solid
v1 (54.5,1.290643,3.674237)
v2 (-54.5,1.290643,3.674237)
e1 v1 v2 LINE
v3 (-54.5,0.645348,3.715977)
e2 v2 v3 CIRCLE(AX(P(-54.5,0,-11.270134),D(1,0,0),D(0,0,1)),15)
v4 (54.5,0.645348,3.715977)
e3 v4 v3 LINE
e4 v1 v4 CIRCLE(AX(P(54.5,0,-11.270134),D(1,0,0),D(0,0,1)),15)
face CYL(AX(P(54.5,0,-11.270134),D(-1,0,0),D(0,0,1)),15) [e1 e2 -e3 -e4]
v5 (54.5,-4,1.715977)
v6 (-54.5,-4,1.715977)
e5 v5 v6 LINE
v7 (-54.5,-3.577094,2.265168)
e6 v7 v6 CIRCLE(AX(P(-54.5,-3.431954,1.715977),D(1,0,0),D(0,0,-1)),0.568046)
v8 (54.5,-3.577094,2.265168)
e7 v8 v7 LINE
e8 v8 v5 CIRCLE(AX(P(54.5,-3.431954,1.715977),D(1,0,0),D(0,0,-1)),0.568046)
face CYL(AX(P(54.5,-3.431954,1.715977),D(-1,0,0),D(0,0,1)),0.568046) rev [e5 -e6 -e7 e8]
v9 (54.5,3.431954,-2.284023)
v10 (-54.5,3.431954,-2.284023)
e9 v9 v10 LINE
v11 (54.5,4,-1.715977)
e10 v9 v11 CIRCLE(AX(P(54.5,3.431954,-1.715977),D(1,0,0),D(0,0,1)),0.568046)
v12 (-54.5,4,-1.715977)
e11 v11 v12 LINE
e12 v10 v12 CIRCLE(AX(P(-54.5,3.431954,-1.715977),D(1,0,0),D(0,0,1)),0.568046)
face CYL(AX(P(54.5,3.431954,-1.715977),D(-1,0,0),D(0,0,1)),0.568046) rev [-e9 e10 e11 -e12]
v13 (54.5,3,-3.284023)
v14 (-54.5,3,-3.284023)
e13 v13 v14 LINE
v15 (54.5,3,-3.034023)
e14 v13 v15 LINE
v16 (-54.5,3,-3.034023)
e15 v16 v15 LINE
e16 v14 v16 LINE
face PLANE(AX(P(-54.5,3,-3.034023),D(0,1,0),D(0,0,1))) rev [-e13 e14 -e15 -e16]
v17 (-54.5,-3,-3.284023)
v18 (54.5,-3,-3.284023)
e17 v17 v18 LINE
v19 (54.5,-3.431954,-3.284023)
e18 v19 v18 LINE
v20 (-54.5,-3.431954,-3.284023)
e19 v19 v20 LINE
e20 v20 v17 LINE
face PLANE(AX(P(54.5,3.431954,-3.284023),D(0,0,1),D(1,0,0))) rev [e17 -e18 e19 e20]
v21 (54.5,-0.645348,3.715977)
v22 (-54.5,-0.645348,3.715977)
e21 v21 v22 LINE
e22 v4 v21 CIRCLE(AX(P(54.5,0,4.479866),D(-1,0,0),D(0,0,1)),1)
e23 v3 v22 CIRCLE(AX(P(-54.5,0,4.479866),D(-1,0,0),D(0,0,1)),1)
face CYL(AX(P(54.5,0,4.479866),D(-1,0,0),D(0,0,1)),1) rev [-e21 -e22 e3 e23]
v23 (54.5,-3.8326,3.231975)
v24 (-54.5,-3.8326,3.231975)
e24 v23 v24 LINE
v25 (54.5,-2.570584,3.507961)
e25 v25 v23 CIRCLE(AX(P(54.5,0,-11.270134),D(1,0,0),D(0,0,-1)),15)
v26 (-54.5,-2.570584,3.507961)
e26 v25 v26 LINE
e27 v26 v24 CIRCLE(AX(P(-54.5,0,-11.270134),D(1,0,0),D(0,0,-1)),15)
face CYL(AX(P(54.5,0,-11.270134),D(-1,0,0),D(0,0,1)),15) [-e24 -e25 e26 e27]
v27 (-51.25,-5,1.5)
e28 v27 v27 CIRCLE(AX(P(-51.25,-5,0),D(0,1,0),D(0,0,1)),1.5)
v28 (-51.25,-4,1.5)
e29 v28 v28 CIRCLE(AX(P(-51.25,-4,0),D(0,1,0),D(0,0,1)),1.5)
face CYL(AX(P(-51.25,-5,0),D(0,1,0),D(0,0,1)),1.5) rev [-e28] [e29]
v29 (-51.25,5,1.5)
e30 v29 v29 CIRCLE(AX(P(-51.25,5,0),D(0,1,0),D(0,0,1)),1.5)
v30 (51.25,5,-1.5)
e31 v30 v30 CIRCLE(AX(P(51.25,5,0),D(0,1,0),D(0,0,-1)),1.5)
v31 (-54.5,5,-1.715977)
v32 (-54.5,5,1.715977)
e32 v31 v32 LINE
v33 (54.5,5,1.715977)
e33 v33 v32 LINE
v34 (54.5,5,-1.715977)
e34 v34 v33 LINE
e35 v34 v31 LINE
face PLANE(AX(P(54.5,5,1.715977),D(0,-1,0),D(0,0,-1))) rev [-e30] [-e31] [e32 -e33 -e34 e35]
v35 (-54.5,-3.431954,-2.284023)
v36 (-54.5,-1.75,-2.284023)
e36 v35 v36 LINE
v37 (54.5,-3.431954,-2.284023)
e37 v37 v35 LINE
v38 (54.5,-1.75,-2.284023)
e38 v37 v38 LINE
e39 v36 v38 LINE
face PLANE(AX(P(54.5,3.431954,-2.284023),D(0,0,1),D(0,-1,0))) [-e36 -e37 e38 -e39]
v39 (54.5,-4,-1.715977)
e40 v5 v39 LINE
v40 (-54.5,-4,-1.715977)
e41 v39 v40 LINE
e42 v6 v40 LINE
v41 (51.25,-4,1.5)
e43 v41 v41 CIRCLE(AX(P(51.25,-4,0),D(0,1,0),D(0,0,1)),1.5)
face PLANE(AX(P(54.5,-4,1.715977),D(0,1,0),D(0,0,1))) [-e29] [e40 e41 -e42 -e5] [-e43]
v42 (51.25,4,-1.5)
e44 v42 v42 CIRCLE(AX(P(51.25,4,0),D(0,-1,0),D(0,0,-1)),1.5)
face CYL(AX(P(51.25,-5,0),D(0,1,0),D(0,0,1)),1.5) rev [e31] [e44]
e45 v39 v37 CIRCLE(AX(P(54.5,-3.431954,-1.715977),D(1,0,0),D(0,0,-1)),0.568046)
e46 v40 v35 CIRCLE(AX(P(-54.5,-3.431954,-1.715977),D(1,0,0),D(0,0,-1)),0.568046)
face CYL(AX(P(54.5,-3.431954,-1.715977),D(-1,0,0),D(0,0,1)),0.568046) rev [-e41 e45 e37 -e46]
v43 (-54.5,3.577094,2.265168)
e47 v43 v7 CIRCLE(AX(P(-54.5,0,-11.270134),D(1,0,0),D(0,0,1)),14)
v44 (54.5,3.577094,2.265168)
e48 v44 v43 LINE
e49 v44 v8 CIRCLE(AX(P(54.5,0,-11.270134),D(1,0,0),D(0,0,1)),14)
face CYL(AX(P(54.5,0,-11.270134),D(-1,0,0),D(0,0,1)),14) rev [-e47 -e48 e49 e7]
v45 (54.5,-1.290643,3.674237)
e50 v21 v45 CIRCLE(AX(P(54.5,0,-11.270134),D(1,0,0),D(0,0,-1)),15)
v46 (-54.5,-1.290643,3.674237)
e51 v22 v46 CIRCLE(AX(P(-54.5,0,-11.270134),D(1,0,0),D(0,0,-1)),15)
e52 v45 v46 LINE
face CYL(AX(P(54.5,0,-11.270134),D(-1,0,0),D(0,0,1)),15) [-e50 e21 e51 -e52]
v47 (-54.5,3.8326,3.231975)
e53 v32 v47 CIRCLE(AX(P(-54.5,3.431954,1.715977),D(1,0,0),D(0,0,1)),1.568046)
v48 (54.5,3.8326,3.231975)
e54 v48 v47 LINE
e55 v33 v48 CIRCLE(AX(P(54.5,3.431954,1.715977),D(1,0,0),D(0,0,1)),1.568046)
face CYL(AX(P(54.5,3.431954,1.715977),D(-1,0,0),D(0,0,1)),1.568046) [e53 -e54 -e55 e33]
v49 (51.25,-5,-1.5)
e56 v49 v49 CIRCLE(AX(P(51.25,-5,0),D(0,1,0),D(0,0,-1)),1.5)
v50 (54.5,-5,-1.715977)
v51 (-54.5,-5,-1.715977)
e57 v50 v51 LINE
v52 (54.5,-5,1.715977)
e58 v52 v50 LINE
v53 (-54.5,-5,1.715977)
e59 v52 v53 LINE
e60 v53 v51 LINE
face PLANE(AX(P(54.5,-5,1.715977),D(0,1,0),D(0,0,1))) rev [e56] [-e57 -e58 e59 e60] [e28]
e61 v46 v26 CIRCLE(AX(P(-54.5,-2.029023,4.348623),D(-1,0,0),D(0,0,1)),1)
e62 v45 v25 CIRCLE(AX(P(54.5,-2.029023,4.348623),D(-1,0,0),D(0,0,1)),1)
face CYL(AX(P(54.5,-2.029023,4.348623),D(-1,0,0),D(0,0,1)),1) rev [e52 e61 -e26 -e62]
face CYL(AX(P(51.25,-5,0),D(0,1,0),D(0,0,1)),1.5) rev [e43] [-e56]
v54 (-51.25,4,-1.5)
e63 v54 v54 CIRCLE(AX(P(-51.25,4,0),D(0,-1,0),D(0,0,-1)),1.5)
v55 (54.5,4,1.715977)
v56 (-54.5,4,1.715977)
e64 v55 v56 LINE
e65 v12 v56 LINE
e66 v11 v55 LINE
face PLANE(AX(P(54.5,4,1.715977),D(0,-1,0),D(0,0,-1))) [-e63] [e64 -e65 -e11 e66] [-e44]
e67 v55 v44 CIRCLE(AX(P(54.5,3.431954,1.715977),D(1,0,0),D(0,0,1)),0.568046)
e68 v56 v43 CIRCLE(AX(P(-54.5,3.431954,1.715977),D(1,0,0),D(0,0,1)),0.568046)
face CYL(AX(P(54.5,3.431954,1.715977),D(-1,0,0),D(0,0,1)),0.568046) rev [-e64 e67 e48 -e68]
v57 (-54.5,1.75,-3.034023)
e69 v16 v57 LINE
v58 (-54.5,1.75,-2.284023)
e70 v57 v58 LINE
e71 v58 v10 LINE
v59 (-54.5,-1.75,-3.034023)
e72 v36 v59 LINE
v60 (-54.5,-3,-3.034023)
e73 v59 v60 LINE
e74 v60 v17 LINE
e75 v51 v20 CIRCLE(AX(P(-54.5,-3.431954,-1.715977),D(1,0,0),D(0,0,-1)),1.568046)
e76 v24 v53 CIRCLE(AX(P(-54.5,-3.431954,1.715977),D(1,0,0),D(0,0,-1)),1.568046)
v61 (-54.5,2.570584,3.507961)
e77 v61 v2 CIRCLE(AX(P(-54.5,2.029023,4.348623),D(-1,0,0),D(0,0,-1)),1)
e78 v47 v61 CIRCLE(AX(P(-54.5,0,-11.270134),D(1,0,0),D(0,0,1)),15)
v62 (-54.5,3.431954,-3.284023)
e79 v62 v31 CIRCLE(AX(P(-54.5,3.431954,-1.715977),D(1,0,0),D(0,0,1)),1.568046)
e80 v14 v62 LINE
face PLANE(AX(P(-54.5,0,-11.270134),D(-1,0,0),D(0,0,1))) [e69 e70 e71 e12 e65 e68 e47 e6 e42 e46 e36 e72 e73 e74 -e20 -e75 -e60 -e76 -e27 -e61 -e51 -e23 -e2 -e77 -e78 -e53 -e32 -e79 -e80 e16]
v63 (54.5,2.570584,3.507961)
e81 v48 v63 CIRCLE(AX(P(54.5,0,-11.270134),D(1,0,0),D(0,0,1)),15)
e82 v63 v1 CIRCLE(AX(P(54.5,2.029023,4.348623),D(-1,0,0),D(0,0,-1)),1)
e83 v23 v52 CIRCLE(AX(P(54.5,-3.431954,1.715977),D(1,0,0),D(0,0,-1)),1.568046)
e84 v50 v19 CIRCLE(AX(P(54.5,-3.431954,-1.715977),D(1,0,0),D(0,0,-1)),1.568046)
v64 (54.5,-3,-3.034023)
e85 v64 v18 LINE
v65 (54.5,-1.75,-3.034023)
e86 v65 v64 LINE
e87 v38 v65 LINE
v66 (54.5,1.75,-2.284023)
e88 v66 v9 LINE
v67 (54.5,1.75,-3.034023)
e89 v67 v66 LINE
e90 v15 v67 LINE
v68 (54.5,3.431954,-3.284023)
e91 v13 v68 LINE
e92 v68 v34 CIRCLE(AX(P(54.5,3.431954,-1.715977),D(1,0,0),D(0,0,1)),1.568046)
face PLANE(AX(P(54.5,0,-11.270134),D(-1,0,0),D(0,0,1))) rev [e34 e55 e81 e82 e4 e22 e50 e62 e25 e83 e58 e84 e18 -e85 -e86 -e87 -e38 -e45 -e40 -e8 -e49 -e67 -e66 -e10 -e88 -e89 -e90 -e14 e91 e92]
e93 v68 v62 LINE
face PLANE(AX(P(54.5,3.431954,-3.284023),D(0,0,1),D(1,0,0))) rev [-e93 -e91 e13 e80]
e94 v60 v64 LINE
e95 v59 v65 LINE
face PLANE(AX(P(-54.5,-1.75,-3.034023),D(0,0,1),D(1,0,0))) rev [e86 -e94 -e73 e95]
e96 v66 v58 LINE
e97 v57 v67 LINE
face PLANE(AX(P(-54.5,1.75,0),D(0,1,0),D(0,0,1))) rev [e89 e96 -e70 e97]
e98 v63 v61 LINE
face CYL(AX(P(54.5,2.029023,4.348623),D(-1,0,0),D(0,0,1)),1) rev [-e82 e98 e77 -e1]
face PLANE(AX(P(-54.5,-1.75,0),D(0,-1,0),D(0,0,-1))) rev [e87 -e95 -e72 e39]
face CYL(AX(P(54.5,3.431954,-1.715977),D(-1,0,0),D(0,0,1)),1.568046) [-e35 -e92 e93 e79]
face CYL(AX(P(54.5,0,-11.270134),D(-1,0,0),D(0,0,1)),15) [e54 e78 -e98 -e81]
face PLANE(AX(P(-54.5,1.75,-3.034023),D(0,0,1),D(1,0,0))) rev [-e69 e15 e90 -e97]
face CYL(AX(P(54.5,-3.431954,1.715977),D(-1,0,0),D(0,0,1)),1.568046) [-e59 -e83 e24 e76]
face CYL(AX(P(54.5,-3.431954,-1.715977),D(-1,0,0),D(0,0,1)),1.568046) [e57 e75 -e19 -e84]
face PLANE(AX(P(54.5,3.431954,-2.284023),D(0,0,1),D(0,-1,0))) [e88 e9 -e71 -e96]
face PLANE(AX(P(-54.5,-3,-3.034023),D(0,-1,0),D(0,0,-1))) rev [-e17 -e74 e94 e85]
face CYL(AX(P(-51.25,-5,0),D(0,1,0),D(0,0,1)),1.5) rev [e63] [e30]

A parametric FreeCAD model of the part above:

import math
import FreeCAD as App
import Part
import Sketcher
Q = App.Units.Quantity

doc = App.newDocument("Part")
body = doc.addObject("PartDesign::Body", "Body")

sketch1 = body.newObject("Sketcher::SketchObject", "Sketch")
sketch1.AttachmentSupport = (doc.getObject("YZ_Plane"), [""])
sketch1.MapMode = "FlatFace"
sketch1.addGeometry([
    Part.LineSegment(App.Vector(5, -1.7, 0), App.Vector(5, 1.7, 0)),
    Part.ArcOfCircle(Part.Circle(App.Vector(3.4, 1.7, 0), App.Vector(0, 0, 1), 1.6), math.radians(0), math.radians(75)),
    Part.ArcOfCircle(Part.Circle(App.Vector(0, -11.3, 0), App.Vector(0, 0, 1), 15), math.radians(75.2), math.radians(80.13)),
    Part.ArcOfCircle(Part.Circle(App.Vector(2, 4.3, 0), App.Vector(0, 0, 1), 1), math.radians(-138), math.radians(-57)),
    Part.ArcOfCircle(Part.Circle(App.Vector(0, -11.3, 0), App.Vector(0, 0, 1), 15), math.radians(85.06), math.radians(87.53)),
    Part.ArcOfCircle(Part.Circle(App.Vector(0, 4.5, 0), App.Vector(0, 0, 1), 1), math.radians(-130), math.radians(-50)),
    Part.ArcOfCircle(Part.Circle(App.Vector(0, -11.3, 0), App.Vector(0, 0, 1), 15), math.radians(92.47), math.radians(94.94)),
    Part.ArcOfCircle(Part.Circle(App.Vector(-2, 4.3, 0), App.Vector(0, 0, 1), 1), math.radians(-123), math.radians(-42)),
    Part.ArcOfCircle(Part.Circle(App.Vector(0, -11.3, 0), App.Vector(0, 0, 1), 15), math.radians(99.87), math.radians(104.8)),
    Part.ArcOfCircle(Part.Circle(App.Vector(-3.4, 1.7, 0), App.Vector(0, 0, 1), 1.6), math.radians(105), math.radians(180)),
    Part.LineSegment(App.Vector(-5, 1.7, 0), App.Vector(-5, -1.7, 0)),
    Part.ArcOfCircle(Part.Circle(App.Vector(-3.4, -1.7, 0), App.Vector(0, 0, 1), 1.6), math.radians(-180), math.radians(-90)),
    Part.LineSegment(App.Vector(-3.4, -3.3, 0), App.Vector(3.4, -3.3, 0)),
    Part.ArcOfCircle(Part.Circle(App.Vector(3.4, -1.7, 0), App.Vector(0, 0, 1), 1.6), math.radians(-90), math.radians(0)),
    Part.LineSegment(App.Vector(4, 1.7, 0), App.Vector(4, -1.7, 0)),
    Part.ArcOfCircle(Part.Circle(App.Vector(3.4, -1.7, 0), App.Vector(0, 0, 1), 0.6), math.radians(-90), math.radians(0)),
    Part.LineSegment(App.Vector(3.4, -2.3, 0), App.Vector(-3.4, -2.3, 0)),
    Part.ArcOfCircle(Part.Circle(App.Vector(-3.4, -1.7, 0), App.Vector(0, 0, 1), 0.6), math.radians(180), math.radians(270)),
    Part.LineSegment(App.Vector(-4, -1.7, 0), App.Vector(-4, 1.7, 0)),
    Part.ArcOfCircle(Part.Circle(App.Vector(-3.4, 1.7, 0), App.Vector(0, 0, 1), 0.6), math.radians(105), math.radians(180)),
    Part.ArcOfCircle(Part.Circle(App.Vector(0, -11.3, 0), App.Vector(0, 0, 1), 14), math.radians(75), math.radians(105)),
    Part.ArcOfCircle(Part.Circle(App.Vector(3.4, 1.7, 0), App.Vector(0, 0, 1), 0.6), math.radians(0), math.radians(75)),
], False)
sketch1.addConstraint([
    Sketcher.Constraint("Tangent", 0, 2, 1, 1),
    Sketcher.Constraint("Tangent", 1, 2, 2, 1),
    Sketcher.Constraint("Coincident", 2, 2, 3, 2),
    Sketcher.Constraint("Coincident", 3, 1, 4, 1),
    Sketcher.Constraint("Coincident", 4, 2, 5, 2),
    Sketcher.Constraint("Coincident", 5, 1, 6, 1),
    Sketcher.Constraint("Coincident", 6, 2, 7, 2),
    Sketcher.Constraint("Coincident", 7, 1, 8, 1),
    Sketcher.Constraint("Tangent", 8, 2, 9, 1),
    Sketcher.Constraint("Tangent", 9, 2, 10, 1),
    Sketcher.Constraint("Tangent", 10, 2, 11, 1),
    Sketcher.Constraint("Tangent", 11, 2, 12, 1),
    Sketcher.Constraint("Tangent", 12, 2, 13, 1),
    Sketcher.Constraint("Tangent", 13, 2, 0, 1),
    Sketcher.Constraint("Tangent", 14, 2, 15, 2),
    Sketcher.Constraint("Tangent", 15, 1, 16, 1),
    Sketcher.Constraint("Tangent", 16, 2, 17, 2),
    Sketcher.Constraint("Tangent", 17, 1, 18, 1),
    Sketcher.Constraint("Tangent", 18, 2, 19, 2),
    Sketcher.Constraint("Tangent", 19, 1, 20, 2),
    Sketcher.Constraint("Tangent", 20, 1, 21, 2),
    Sketcher.Constraint("Tangent", 21, 1, 14, 1),
    Sketcher.Constraint("Vertical", 0),
    Sketcher.Constraint("Vertical", 10),
    Sketcher.Constraint("Horizontal", 12),
    Sketcher.Constraint("Vertical", 14),
    Sketcher.Constraint("Horizontal", 16),
    Sketcher.Constraint("Vertical", 18),
    Sketcher.Constraint("Coincident", 4, 3, 2, 3),
    Sketcher.Constraint("Coincident", 6, 3, 2, 3),
    Sketcher.Constraint("Coincident", 8, 3, 2, 3),
    Sketcher.Constraint("Coincident", 15, 3, 13, 3),
    Sketcher.Constraint("Coincident", 17, 3, 11, 3),
    Sketcher.Constraint("Coincident", 19, 3, 9, 3),
    Sketcher.Constraint("Coincident", 20, 3, 2, 3),
    Sketcher.Constraint("Coincident", 21, 3, 1, 3),
    Sketcher.Constraint("Equal", 2, 4),
    Sketcher.Constraint("Equal", 3, 5),
    Sketcher.Constraint("Equal", 4, 6),
    Sketcher.Constraint("Equal", 5, 7),
    Sketcher.Constraint("Equal", 1, 9),
    Sketcher.Constraint("Equal", 9, 11),
    Sketcher.Constraint("Equal", 11, 13),
    Sketcher.Constraint("Symmetric", 1, 3, 11, 3, -1, 1),
    Sketcher.Constraint("Symmetric", 3, 3, 7, 3, -2),
    Sketcher.Constraint("Symmetric", 4, 2, 5, 1, -2),
    Sketcher.Constraint("Radius", 2, Q("15 mm")),
    Sketcher.Constraint("Radius", 3, Q("1 mm")),
    Sketcher.Constraint("Radius", 20, Q("14 mm")),
    Sketcher.Constraint("DistanceX", -1, 1, 0, 2, Q("5 mm")),
    Sketcher.Constraint("DistanceY", 11, 2, 19, 3, Q("5 mm")),
    Sketcher.Constraint("DistanceY", 2, 3, 5, 3, Q("15.75 mm")),
    Sketcher.Constraint("Radius", 1, Q("1.568046 mm")),
    Sketcher.Constraint("DistanceY", 11, 3, 7, 3, Q("6.0646 mm")),
    Sketcher.Constraint("DistanceY", -1, 1, 2, 2, Q("3.507961 mm")),
])
pad1 = body.newObject("PartDesign::Pad", "Pad")
pad1.Profile = sketch1
pad1.Length = 109
pad1.Midplane = True

sketch2 = body.newObject("Sketcher::SketchObject", "Sketch001")
sketch2.AttachmentSupport = (doc.getObject("XZ_Plane"), [""])
sketch2.MapMode = "FlatFace"
sketch2.addGeometry([
    Part.Circle(App.Vector(-51.2, 0, 0), App.Vector(0, 0, 1), 1.5),
    Part.Circle(App.Vector(51.2, 0, 0), App.Vector(0, 0, 1), 1.5),
], False)
sketch2.addConstraint([
    Sketcher.Constraint("Equal", 0, 1),
    Sketcher.Constraint("Symmetric", 0, 3, 1, 3, -1, 1),
    Sketcher.Constraint("PointOnObject", 0, 3, -1),
    Sketcher.Constraint("Diameter", 0, Q("3 mm")),
    Sketcher.Constraint("DistanceX", 0, 3, 1, 3, Q("102.5 mm")),
])
pocket1 = body.newObject("PartDesign::Pocket", "Pocket")
pocket1.Profile = sketch2
pocket1.Type = "ThroughAll"
pocket1.Midplane = True

sketch3 = body.newObject("Sketcher::SketchObject", "Sketch002")
sketch3.AttachmentSupport = (doc.getObject("YZ_Plane"), [""])
sketch3.MapMode = "FlatFace"
sketch3.addGeometry([
    Part.LineSegment(App.Vector(1.8, 0, 0), App.Vector(-1.8, 0, 0)),
    Part.LineSegment(App.Vector(-1.8, 0, 0), App.Vector(-1.8, -3, 0)),
    Part.LineSegment(App.Vector(-1.8, -3, 0), App.Vector(-3, -3, 0)),
    Part.LineSegment(App.Vector(-3, -3, 0), App.Vector(-3, -4.3, 0)),
    Part.LineSegment(App.Vector(-3, -4.3, 0), App.Vector(3, -4.3, 0)),
    Part.LineSegment(App.Vector(3, -4.3, 0), App.Vector(3, -3, 0)),
    Part.LineSegment(App.Vector(3, -3, 0), App.Vector(1.8, -3, 0)),
    Part.LineSegment(App.Vector(1.8, -3, 0), App.Vector(1.8, 0, 0)),
], False)
sketch3.addConstraint([
    Sketcher.Constraint("Coincident", 0, 2, 1, 1),
    Sketcher.Constraint("Coincident", 1, 2, 2, 1),
    Sketcher.Constraint("Coincident", 2, 2, 3, 1),
    Sketcher.Constraint("Coincident", 3, 2, 4, 1),
    Sketcher.Constraint("Coincident", 4, 2, 5, 1),
    Sketcher.Constraint("Coincident", 5, 2, 6, 1),
    Sketcher.Constraint("Coincident", 6, 2, 7, 1),
    Sketcher.Constraint("Coincident", 7, 2, 0, 1),
    Sketcher.Constraint("Horizontal", 0),
    Sketcher.Constraint("Vertical", 1),
    Sketcher.Constraint("Horizontal", 2),
    Sketcher.Constraint("Vertical", 3),
    Sketcher.Constraint("Horizontal", 4),
    Sketcher.Constraint("Vertical", 5),
    Sketcher.Constraint("Horizontal", 6),
    Sketcher.Constraint("Vertical", 7),
    Sketcher.Constraint("Symmetric", 0, 2, 7, 2, -1, 1),
    Sketcher.Constraint("Symmetric", 2, 2, 5, 2, -2),
    Sketcher.Constraint("Equal", 6, 3),
    Sketcher.Constraint("DistanceX", 4, 1, 4, 2, Q("6 mm")),
    Sketcher.Constraint("DistanceX", 0, 2, 0, 1, Q("3.5 mm")),
    Sketcher.Constraint("DistanceY", 1, 2, 1, 1, Q("3.034023 mm")),
])
pocket2 = body.newObject("PartDesign::Pocket", "Pocket001")
pocket2.Profile = sketch3
pocket2.Type = "ThroughAll"
pocket2.Midplane = True

doc.recompute()
